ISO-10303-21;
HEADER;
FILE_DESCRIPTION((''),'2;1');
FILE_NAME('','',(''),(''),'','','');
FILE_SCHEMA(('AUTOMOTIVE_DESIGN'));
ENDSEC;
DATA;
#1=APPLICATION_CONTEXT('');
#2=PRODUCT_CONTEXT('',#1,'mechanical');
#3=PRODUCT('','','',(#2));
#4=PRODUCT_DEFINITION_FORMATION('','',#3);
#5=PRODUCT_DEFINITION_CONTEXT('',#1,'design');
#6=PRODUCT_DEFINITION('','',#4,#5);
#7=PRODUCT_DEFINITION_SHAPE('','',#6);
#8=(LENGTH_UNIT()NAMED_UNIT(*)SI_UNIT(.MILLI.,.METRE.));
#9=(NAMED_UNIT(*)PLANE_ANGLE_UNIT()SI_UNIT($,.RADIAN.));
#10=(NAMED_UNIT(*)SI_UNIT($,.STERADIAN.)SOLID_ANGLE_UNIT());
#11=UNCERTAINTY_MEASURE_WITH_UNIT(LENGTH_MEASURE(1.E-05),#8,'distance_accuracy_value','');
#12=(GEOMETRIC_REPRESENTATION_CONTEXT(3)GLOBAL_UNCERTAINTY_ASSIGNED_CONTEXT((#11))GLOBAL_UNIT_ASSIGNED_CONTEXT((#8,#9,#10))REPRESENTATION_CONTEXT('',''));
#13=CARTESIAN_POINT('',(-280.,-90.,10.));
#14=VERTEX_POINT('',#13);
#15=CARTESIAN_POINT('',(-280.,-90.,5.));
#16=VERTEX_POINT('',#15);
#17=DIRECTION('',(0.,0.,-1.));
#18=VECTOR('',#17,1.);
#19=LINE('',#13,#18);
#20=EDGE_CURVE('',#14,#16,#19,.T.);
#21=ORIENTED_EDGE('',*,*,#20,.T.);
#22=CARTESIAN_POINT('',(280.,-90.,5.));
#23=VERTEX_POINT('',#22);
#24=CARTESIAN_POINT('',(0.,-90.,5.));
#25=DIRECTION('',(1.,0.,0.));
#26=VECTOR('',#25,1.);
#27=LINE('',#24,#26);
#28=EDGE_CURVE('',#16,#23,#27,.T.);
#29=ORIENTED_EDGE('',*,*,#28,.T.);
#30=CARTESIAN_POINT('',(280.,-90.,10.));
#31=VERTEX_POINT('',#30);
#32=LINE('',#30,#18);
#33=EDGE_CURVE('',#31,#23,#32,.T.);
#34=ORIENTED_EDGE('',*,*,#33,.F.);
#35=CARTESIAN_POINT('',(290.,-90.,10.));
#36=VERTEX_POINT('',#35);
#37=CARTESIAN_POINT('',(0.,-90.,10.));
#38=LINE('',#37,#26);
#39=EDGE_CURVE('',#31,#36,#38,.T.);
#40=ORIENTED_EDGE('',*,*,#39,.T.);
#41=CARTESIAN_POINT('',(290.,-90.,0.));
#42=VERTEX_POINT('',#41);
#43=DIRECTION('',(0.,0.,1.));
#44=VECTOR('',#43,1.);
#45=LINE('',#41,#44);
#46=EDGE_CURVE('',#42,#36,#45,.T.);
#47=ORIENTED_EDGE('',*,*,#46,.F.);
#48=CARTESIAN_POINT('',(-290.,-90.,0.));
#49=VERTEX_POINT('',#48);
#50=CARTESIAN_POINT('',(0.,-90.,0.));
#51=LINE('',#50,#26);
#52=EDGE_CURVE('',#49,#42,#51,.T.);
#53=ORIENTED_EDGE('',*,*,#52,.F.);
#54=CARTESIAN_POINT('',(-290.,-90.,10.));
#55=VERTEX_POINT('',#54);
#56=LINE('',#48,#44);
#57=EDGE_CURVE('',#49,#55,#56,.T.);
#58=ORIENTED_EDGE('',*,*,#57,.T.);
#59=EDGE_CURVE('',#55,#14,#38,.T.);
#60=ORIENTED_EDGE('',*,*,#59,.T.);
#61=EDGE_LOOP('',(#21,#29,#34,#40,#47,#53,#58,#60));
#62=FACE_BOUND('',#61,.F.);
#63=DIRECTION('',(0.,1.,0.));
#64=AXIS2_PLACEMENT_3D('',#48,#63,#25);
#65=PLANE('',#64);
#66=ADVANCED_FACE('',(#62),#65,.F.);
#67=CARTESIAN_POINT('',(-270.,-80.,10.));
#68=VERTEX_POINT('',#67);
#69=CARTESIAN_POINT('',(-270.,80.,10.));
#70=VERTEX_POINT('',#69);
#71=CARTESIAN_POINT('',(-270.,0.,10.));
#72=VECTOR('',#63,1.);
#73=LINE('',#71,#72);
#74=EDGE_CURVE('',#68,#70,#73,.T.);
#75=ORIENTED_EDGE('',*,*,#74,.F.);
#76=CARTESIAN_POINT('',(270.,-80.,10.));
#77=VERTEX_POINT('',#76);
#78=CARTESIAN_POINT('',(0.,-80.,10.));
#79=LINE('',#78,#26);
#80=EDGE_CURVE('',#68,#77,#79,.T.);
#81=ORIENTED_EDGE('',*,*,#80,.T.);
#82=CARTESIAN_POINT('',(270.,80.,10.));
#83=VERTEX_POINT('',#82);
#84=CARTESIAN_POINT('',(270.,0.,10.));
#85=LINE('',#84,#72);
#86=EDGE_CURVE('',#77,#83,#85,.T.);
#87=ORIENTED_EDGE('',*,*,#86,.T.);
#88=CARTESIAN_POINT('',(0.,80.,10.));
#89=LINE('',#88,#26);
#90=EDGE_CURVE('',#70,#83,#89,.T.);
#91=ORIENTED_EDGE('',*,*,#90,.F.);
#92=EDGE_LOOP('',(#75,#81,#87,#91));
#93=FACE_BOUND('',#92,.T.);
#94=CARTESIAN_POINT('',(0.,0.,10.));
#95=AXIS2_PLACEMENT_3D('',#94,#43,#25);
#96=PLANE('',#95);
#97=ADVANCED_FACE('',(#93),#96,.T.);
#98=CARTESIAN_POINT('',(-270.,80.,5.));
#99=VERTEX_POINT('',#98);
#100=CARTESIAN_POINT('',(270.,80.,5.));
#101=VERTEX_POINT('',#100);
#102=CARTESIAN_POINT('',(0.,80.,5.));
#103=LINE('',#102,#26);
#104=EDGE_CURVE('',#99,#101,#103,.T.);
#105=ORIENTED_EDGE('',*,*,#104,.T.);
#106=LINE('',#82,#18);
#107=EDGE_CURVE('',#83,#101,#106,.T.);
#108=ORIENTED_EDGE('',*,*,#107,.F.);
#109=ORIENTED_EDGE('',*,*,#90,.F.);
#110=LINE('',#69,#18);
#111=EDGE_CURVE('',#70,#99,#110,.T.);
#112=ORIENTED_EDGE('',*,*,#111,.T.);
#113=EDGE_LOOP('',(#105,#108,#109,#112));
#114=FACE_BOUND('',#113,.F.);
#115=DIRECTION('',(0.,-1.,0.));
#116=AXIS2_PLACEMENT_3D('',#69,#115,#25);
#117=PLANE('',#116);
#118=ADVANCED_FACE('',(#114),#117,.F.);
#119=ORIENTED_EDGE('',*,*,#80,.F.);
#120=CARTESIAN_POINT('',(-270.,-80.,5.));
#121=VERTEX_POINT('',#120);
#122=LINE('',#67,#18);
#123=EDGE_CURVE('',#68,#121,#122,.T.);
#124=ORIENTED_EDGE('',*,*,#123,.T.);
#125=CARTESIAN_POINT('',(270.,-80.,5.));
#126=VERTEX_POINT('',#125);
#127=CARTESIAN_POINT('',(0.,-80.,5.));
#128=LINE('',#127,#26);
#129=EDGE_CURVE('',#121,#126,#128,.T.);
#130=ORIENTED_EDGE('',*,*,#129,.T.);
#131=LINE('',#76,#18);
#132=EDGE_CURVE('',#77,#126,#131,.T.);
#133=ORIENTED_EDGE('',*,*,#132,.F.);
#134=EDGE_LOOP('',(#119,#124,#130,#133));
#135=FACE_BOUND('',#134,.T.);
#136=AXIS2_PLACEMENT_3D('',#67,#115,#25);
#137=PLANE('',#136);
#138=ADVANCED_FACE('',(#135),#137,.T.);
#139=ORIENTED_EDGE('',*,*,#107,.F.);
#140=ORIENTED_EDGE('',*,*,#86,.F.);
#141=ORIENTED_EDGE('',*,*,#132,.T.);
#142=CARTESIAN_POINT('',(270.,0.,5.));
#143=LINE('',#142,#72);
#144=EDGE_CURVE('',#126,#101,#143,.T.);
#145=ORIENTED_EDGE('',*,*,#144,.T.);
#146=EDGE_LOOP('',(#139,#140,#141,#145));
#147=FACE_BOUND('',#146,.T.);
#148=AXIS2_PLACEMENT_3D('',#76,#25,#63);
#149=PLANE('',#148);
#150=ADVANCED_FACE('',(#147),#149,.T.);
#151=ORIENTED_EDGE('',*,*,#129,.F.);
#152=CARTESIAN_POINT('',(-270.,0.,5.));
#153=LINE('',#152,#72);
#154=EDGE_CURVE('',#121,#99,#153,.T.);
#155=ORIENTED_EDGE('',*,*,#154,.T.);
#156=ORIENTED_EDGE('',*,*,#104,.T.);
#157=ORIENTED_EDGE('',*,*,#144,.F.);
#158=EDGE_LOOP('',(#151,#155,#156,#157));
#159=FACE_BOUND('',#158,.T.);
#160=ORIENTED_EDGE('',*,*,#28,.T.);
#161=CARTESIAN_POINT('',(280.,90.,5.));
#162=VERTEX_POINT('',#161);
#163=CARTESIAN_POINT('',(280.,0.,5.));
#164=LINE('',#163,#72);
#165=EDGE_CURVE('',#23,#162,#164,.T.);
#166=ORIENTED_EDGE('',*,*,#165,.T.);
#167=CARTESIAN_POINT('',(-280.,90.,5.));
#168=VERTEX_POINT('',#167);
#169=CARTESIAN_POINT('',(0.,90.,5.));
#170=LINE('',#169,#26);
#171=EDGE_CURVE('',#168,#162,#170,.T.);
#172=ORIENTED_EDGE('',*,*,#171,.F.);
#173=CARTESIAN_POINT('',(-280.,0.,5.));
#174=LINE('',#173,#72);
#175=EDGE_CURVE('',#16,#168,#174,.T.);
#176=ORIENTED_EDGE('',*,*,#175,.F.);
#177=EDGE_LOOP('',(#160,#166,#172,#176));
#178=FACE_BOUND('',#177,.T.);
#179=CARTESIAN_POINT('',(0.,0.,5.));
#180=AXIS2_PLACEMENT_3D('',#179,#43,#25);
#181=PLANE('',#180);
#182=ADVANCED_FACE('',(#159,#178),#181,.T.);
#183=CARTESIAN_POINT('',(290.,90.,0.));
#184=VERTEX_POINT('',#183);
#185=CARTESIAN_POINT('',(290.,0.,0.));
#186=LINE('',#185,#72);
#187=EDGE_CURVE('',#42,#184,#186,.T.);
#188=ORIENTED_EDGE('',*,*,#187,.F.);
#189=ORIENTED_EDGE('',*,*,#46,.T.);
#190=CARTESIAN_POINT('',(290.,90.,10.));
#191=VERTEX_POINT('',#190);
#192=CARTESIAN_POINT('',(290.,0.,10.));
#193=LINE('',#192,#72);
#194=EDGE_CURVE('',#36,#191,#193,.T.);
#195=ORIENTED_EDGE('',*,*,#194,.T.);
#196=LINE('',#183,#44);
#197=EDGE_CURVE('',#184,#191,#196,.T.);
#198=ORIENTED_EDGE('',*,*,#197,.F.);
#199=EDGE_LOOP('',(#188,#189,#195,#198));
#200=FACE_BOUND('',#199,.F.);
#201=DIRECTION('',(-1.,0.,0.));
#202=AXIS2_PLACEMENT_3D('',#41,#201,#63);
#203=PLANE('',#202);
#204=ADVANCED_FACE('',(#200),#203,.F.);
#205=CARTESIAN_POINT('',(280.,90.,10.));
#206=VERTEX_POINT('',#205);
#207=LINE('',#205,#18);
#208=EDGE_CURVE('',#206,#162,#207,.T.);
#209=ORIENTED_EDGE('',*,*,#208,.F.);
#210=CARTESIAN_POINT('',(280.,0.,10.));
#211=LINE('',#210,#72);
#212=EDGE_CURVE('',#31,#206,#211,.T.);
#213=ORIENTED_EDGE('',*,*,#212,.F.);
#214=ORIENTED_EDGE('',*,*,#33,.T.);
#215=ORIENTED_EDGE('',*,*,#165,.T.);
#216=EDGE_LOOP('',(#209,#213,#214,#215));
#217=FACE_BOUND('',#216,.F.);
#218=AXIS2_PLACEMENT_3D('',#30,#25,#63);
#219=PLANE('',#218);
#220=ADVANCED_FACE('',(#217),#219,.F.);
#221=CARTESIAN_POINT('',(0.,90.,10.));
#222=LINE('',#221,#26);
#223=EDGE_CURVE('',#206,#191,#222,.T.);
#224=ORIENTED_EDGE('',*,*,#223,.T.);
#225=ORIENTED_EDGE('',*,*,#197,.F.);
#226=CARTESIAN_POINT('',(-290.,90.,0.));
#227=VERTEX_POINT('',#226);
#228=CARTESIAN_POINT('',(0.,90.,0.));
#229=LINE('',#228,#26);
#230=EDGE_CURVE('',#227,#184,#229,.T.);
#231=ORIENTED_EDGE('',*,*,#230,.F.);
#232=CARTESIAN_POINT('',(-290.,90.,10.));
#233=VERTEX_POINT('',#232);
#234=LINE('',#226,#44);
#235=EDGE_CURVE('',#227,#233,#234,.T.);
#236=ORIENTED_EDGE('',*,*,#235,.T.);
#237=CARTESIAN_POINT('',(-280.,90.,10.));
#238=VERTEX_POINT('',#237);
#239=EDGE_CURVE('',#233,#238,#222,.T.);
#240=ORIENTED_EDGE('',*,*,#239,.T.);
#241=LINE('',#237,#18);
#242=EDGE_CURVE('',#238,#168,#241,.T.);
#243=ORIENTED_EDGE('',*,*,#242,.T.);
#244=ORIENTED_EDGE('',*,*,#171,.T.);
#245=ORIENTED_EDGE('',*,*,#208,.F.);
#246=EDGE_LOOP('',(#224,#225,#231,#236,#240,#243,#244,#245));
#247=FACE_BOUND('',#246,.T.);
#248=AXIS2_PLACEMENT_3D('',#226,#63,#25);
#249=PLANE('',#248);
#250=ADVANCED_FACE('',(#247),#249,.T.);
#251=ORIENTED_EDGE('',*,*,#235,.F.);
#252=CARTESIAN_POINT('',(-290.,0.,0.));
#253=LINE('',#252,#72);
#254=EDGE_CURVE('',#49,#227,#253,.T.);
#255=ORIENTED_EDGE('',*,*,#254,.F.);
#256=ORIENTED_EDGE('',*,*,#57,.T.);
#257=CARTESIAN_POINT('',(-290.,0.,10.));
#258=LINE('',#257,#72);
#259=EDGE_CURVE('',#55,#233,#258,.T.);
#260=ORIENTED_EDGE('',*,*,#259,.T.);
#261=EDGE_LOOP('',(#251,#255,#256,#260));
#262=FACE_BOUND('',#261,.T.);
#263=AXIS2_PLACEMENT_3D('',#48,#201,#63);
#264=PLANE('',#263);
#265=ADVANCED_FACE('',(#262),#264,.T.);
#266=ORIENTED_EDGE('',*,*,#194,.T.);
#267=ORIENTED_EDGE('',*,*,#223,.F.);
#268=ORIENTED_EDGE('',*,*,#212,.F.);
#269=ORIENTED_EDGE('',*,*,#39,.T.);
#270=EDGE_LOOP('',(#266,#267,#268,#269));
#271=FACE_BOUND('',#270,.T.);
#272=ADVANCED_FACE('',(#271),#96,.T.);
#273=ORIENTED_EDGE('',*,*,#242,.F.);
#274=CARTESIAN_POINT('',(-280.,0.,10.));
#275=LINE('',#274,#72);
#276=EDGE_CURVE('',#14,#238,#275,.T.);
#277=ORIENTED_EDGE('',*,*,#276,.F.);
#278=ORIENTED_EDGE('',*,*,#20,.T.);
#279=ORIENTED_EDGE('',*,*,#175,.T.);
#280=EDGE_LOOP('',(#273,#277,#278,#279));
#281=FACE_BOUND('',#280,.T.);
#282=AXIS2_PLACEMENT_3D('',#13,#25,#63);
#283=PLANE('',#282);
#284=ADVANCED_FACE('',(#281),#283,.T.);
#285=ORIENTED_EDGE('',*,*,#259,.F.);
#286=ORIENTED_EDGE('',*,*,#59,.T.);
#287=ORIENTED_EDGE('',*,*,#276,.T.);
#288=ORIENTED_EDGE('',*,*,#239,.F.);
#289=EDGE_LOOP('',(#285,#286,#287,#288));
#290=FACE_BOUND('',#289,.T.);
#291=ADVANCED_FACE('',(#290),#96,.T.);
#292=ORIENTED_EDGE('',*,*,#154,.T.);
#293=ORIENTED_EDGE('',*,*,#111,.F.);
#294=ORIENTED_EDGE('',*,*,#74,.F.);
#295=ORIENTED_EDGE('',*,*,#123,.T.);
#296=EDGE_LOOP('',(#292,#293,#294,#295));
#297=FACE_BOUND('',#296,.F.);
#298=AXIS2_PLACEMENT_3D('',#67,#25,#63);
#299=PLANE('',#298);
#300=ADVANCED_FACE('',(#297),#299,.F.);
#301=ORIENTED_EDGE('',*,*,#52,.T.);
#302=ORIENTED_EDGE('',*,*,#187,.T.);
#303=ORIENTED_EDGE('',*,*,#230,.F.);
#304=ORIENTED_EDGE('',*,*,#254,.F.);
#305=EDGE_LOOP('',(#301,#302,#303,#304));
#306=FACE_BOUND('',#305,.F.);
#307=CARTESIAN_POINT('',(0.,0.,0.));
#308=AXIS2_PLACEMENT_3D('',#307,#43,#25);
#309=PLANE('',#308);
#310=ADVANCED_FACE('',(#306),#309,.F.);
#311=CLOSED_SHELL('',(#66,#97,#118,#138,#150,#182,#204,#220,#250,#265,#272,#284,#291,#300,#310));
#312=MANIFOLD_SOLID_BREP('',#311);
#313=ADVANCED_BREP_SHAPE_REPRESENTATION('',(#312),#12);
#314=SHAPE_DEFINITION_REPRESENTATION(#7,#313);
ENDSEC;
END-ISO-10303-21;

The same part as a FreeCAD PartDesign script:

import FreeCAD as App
import Part
import Sketcher

V = App.Vector


def add_polygon(sketch, points):
    """Adds a closed chain of lines whose ends are joined by coincident constraints."""
    first, n = sketch.GeometryCount, len(points)
    for a, b in zip(points, points[1:] + points[:1]):
        sketch.addGeometry(Part.LineSegment(App.Vector(*a, 0), App.Vector(*b, 0)), False)
    for i in range(n):
        sketch.addConstraint(Sketcher.Constraint("Coincident", first + i, 2, first + (i + 1) % n, 1))

doc = App.newDocument("Part")
body = doc.addObject("PartDesign::Body", "Body")

# Sketch on XY plane
sketch1 = body.newObject("Sketcher::SketchObject", "Sketch")
sketch1.AttachmentSupport = (doc.getObject("XY_Plane"), [""])
sketch1.MapMode = "FlatFace"
add_polygon(sketch1, [(-290, 90), (-290, -90), (290, -90), (290, 90)])  # lines 0-3
sketch1.addConstraint([
    Sketcher.Constraint("Vertical", 0),
    Sketcher.Constraint("Horizontal", 1),
    Sketcher.Constraint("Vertical", 2),
    Sketcher.Constraint("Horizontal", 3),
    Sketcher.Constraint("Symmetric", 0, 2, 2, 2, -1, 1),
    Sketcher.Constraint("DistanceX", 1, 1, 1, 2, 580.0),
    Sketcher.Constraint("DistanceY", 0, 2, 0, 1, 180.0),
])
pad1 = body.newObject("PartDesign::Pad", "Pad")
pad1.Profile = sketch1
pad1.Length = 10

# Sketch on XY plane
sketch2 = body.newObject("Sketcher::SketchObject", "Sketch001")
sketch2.AttachmentSupport = (doc.getObject("XY_Plane"), [""])
sketch2.MapMode = "FlatFace"
sketch2.AttachmentOffset = App.Placement(V(0, 0, 10), App.Rotation())
add_polygon(sketch2, [(-280, 90), (-280, -90), (280, -90), (280, 90)])  # lines 0-3
add_polygon(sketch2, [(270, -80), (-270, -80), (-270, 80), (270, 80)])  # lines 4-7
sketch2.addConstraint([
    Sketcher.Constraint("Vertical", 0),
    Sketcher.Constraint("Horizontal", 1),
    Sketcher.Constraint("Vertical", 2),
    Sketcher.Constraint("Horizontal", 3),
    Sketcher.Constraint("Horizontal", 4),
    Sketcher.Constraint("Vertical", 5),
    Sketcher.Constraint("Horizontal", 6),
    Sketcher.Constraint("Vertical", 7),
    Sketcher.Constraint("Symmetric", 0, 2, 2, 2, -1, 1),
    Sketcher.Constraint("Symmetric", 4, 2, 6, 2, -1, 1),
    Sketcher.Constraint("DistanceX", 1, 1, 1, 2, 560.0),
    Sketcher.Constraint("DistanceX", 4, 2, 4, 1, 540.0),
    Sketcher.Constraint("DistanceY", 0, 2, 0, 1, 180.0),
    Sketcher.Constraint("DistanceY", 5, 1, 5, 2, 160.0),
])
pocket1 = body.newObject("PartDesign::Pocket", "Pocket")
pocket1.Profile = sketch2
pocket1.Length = 5

doc.recompute()
